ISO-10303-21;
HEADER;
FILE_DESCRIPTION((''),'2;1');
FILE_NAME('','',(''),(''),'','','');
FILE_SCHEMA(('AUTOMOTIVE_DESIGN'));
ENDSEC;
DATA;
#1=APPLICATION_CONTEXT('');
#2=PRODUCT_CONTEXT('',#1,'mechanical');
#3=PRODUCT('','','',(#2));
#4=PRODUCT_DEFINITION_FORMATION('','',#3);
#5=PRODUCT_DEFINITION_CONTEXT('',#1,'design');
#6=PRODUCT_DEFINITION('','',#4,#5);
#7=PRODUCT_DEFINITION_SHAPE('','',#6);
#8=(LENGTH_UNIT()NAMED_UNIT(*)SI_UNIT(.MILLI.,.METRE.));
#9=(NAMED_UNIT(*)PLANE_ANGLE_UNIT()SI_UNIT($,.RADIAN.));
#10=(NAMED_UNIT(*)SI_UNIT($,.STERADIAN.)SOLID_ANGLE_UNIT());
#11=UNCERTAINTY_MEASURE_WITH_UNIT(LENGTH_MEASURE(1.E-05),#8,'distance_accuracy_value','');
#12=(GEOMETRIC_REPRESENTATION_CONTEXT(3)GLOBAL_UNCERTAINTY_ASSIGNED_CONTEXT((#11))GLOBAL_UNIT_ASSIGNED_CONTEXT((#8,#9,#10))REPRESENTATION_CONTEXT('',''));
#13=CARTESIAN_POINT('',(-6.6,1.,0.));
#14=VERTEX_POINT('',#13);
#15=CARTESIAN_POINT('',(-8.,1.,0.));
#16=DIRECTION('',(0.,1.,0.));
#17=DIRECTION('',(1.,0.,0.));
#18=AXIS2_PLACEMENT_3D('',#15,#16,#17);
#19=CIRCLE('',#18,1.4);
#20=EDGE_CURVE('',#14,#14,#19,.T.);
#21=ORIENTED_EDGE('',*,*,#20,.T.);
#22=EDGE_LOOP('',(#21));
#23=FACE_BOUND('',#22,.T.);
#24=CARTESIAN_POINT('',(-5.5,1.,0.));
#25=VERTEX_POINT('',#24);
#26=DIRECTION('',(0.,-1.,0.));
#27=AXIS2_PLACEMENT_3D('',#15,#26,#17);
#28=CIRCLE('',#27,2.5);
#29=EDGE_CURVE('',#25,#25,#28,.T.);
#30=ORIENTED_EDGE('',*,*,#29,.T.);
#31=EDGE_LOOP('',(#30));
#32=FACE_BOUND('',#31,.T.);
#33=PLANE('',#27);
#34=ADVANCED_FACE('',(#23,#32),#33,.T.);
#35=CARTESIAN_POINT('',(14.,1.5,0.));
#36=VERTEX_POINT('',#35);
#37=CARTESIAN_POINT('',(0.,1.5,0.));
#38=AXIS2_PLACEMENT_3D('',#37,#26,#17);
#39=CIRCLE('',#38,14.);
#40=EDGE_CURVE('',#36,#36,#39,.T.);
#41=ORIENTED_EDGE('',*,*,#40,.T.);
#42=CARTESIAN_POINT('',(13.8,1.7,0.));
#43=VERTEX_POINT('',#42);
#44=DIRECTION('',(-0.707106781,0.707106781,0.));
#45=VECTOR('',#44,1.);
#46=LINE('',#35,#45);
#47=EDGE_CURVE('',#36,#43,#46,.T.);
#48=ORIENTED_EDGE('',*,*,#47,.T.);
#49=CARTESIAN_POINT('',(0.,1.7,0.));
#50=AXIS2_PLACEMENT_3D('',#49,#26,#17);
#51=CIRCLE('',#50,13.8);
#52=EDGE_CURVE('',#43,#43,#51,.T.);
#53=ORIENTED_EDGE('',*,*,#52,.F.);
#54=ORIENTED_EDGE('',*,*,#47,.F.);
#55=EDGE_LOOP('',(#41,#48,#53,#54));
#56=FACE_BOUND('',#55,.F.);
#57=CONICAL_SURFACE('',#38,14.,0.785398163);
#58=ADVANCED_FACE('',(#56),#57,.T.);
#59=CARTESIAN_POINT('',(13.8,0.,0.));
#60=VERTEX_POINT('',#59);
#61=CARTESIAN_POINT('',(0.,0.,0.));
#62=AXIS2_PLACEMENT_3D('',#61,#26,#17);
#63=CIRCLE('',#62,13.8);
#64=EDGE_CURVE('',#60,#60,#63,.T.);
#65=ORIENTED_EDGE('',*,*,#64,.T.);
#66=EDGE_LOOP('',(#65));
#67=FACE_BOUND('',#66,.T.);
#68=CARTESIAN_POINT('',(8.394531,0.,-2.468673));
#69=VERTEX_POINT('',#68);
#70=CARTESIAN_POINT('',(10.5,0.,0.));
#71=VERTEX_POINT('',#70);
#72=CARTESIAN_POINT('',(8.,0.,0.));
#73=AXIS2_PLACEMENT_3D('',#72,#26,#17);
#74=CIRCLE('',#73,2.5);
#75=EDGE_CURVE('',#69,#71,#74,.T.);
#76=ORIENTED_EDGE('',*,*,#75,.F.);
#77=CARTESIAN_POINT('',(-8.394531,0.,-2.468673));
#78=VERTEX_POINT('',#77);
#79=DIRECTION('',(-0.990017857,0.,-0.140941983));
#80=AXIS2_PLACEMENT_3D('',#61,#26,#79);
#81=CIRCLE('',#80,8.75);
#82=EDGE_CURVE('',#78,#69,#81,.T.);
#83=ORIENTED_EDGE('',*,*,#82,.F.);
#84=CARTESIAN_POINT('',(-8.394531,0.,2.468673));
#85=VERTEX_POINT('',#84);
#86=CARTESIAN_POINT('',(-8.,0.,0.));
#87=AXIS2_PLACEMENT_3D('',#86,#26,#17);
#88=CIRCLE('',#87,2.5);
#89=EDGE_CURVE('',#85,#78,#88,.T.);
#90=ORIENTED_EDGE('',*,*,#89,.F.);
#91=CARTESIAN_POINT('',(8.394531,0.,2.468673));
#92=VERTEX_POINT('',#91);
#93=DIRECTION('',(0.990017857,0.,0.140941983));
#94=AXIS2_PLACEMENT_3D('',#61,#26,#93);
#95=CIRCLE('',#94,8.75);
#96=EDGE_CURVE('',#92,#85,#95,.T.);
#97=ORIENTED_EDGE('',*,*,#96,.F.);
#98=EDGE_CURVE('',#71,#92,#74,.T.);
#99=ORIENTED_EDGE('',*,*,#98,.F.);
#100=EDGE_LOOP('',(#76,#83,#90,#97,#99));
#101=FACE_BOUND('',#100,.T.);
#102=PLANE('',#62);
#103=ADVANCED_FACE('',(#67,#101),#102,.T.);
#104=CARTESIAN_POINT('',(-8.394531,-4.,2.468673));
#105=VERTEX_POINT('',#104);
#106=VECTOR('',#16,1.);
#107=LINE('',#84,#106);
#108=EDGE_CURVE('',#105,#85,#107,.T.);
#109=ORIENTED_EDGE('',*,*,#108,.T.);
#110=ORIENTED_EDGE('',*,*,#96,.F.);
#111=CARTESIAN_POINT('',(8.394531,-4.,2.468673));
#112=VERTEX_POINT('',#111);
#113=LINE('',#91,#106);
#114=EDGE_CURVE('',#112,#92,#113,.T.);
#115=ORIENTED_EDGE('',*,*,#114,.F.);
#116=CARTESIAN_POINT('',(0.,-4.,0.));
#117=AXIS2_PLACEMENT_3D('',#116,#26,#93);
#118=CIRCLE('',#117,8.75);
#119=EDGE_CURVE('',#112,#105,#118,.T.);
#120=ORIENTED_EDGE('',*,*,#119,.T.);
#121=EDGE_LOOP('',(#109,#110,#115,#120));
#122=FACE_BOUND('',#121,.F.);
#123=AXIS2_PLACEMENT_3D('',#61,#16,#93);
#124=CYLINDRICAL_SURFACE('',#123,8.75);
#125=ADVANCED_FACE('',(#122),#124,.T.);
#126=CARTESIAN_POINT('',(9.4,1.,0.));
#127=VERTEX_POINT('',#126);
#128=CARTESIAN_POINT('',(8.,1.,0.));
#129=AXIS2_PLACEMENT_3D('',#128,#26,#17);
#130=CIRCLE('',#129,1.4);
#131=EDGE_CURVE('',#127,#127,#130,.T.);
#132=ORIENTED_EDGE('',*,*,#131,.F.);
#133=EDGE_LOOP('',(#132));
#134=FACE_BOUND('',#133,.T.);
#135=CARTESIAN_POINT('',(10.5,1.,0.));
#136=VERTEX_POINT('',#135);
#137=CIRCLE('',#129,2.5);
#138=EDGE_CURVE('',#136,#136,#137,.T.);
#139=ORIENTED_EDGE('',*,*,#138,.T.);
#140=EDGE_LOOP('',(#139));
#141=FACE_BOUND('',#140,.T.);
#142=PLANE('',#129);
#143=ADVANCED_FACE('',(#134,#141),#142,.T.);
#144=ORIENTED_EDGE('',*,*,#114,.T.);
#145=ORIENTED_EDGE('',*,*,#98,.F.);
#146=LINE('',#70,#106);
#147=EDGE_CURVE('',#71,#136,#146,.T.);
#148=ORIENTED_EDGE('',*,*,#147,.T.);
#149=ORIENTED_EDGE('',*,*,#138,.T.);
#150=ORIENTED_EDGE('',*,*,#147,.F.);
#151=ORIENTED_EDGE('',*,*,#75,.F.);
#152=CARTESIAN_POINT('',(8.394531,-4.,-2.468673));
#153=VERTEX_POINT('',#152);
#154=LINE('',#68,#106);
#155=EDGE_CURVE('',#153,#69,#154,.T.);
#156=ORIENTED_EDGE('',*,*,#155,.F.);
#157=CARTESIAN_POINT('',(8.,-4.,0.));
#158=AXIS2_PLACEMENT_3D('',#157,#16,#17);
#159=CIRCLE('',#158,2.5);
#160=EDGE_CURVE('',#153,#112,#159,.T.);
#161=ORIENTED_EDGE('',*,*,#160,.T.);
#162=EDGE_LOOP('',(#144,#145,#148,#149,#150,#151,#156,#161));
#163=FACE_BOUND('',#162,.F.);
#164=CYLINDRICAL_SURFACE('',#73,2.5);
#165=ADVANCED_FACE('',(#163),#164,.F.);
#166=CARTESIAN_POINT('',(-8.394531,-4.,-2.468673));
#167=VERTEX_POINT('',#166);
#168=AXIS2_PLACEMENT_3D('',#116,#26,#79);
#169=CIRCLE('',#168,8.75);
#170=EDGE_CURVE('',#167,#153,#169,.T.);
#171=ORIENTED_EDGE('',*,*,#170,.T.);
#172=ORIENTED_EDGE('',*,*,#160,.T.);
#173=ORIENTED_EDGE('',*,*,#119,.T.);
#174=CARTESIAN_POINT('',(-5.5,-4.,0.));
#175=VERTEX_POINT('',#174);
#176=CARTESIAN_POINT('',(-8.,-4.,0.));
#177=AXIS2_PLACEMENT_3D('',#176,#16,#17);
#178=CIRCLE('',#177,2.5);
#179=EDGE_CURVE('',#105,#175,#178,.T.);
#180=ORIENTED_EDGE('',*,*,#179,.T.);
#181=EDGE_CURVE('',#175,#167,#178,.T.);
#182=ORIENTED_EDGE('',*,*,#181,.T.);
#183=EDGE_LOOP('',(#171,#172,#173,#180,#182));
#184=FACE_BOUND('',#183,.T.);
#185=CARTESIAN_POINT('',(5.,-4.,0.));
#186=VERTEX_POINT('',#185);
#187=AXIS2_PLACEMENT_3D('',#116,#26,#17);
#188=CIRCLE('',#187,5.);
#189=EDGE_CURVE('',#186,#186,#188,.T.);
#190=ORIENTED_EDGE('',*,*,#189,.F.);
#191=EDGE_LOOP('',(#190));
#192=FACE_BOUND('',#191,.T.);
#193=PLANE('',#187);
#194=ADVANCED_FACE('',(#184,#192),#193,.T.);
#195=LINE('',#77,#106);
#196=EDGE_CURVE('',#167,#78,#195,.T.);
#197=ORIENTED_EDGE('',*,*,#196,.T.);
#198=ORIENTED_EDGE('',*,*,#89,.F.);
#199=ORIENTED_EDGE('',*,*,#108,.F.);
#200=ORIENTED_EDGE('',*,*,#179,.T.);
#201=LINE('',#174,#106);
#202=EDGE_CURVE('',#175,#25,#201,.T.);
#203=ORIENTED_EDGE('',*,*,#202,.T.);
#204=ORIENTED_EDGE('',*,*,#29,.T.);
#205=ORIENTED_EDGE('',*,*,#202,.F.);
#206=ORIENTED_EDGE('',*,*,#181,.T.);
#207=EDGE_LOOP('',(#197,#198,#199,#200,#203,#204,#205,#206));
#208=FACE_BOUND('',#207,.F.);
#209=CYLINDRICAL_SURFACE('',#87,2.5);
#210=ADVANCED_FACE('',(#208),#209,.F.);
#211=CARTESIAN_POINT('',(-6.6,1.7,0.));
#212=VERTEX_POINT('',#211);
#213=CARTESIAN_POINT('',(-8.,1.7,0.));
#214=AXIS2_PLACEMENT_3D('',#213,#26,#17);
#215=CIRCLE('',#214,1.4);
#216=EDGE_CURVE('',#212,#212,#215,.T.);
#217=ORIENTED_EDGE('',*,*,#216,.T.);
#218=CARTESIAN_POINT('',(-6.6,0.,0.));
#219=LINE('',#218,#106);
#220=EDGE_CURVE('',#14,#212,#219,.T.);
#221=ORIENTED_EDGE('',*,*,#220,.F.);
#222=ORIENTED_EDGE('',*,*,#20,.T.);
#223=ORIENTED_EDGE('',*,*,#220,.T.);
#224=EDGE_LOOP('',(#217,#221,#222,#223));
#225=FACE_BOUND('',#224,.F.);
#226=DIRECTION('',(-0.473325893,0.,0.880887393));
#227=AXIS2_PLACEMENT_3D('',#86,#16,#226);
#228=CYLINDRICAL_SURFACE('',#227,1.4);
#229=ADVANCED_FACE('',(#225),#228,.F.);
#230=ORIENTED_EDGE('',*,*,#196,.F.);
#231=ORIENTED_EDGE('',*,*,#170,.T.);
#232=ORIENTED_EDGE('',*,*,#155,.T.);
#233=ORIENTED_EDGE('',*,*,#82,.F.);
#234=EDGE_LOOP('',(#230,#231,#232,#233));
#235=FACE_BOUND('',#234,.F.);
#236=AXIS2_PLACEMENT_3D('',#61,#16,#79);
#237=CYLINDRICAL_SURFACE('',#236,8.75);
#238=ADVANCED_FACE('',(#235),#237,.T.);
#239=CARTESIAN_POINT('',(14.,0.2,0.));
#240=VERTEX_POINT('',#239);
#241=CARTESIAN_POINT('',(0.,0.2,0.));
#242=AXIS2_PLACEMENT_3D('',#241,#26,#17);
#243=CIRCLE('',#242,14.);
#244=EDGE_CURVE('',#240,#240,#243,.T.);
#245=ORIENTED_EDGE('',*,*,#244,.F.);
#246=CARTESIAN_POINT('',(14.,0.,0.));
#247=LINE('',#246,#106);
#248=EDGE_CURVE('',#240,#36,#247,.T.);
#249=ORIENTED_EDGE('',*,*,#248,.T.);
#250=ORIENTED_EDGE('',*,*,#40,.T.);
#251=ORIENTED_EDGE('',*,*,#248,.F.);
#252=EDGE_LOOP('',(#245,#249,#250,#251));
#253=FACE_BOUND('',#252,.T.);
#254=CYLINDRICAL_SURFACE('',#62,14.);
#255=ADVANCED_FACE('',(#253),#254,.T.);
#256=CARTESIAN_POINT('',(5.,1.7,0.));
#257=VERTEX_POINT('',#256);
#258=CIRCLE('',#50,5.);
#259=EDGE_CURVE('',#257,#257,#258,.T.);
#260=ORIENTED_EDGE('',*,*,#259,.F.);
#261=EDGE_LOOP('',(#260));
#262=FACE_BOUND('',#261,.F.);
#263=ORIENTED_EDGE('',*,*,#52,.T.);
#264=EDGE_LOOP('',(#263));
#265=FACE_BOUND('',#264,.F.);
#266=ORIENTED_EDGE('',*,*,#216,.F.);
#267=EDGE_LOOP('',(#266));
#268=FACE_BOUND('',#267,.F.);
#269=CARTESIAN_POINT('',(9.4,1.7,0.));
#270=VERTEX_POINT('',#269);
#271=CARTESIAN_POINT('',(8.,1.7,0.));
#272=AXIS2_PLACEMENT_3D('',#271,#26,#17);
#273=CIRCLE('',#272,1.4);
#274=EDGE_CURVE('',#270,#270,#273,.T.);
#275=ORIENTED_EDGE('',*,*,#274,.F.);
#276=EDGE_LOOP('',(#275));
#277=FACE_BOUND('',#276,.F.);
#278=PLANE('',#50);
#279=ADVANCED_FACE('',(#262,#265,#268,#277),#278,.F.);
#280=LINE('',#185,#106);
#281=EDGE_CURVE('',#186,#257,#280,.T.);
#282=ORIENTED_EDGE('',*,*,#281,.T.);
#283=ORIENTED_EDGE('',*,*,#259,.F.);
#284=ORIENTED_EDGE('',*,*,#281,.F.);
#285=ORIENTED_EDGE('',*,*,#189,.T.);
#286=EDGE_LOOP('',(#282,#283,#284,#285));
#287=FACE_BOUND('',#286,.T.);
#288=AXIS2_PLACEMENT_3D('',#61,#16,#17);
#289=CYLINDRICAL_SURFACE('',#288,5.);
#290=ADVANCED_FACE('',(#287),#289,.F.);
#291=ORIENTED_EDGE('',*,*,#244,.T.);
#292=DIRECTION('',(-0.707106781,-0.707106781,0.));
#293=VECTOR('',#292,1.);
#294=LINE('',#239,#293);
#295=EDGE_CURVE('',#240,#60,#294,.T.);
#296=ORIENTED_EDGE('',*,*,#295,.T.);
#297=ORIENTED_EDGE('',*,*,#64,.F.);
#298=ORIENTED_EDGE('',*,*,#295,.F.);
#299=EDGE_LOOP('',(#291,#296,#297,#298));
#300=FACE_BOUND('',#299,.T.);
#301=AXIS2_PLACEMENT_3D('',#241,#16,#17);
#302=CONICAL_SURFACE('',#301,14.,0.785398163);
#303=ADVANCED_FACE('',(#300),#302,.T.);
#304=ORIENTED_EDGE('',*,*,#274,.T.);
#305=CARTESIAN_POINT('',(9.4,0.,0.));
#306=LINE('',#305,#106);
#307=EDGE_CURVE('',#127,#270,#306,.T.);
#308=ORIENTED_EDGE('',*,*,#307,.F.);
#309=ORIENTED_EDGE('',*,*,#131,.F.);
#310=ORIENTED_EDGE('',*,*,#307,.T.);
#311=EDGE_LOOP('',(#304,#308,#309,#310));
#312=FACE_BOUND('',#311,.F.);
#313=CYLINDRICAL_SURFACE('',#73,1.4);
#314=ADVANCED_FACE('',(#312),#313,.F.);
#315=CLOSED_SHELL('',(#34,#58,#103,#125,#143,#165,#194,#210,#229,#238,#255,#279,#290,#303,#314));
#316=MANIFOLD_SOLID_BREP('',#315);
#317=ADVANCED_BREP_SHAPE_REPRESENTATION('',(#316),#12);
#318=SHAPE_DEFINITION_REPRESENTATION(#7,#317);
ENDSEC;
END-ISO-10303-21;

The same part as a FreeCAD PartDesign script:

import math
import FreeCAD as App
import Part
import Sketcher
from FreeCAD import Vector


def edges_at(feature, points):
    """Names of the edges that pass closest to the given points."""
    edges = feature.Shape.Edges
    near = lambda p: min(range(len(edges)), key=lambda i: edges[i].distToShape(Part.Vertex(*p))[0])
    return sorted({f"Edge{near(p) + 1}" for p in points})

doc = App.newDocument("Part")
body = doc.addObject("PartDesign::Body", "Body")

# Sketch on XZ plane
sketch1 = body.newObject("Sketcher::SketchObject", "Sketch")
sketch1.AttachmentSupport = (doc.getObject("XZ_Plane"), [""])
sketch1.MapMode = "FlatFace"
sketch1.addGeometry([
    Part.Circle(Vector(0, 0, 0), Vector(0, 0, 1), 14),
    Part.Circle(Vector(-8, 0, 0), Vector(0, 0, 1), 1.4),
    Part.Circle(Vector(0, 0, 0), Vector(0, 0, 1), 5),
    Part.Circle(Vector(8, 0, 0), Vector(0, 0, 1), 1.4),
], False)
sketch1.addConstraint([
    Sketcher.Constraint("Coincident", 0, 3, -1, 1),
    Sketcher.Constraint("Coincident", 2, 3, -1, 1),
    Sketcher.Constraint("Equal", 1, 3),
    Sketcher.Constraint("Symmetric", 1, 3, 3, 3, -1, 1),
    Sketcher.Constraint("PointOnObject", 1, 3, -1),
    Sketcher.Constraint("Diameter", 0, 28.0),
    Sketcher.Constraint("Diameter", 2, 10.0),
    Sketcher.Constraint("Diameter", 1, 2.8),
    Sketcher.Constraint("DistanceX", 1, 3, -1, 1, 8.0),
])
pad1 = body.newObject("PartDesign::Pad", "Pad")
pad1.Profile = sketch1
pad1.Length = 1.7
pad1.Reversed = True
doc.recompute()

chamfer = body.newObject("PartDesign::Chamfer", "Chamfer")
chamfer.Base = (pad1, edges_at(pad1, [(-14, 1.7, 0), (-14, 0, 0)]))
chamfer.Size = 0.2

# Sketch on XZ plane
sketch2 = body.newObject("Sketcher::SketchObject", "Sketch001")
sketch2.AttachmentSupport = (doc.getObject("XZ_Plane"), [""])
sketch2.MapMode = "FlatFace"
sketch2.addGeometry([
    Part.ArcOfCircle(Part.Circle(Vector(-8, 0, 0), Vector(0, 0, 1), 1.4), math.radians(-118), math.radians(118)),  # 0
    Part.ArcOfCircle(Part.Circle(Vector(0, 0, 0), Vector(0, 0, 1), 8.8), math.radians(-172), math.radians(-8)),  # 1
    Part.ArcOfCircle(Part.Circle(Vector(8, 0, 0), Vector(0, 0, 1), 1.4), math.radians(62), math.radians(298)),  # 2
    Part.ArcOfCircle(Part.Circle(Vector(0, 0, 0), Vector(0, 0, 1), 8.8), math.radians(8), math.radians(172)),  # 3
    Part.Circle(Vector(0, 0, 0), Vector(0, 0, 1), 5),  # 4
], False)
sketch2.addConstraint([
    Sketcher.Constraint("Coincident", 0, 1, 1, 1),
    Sketcher.Constraint("Coincident", 1, 2, 2, 2),
    Sketcher.Constraint("Coincident", 2, 1, 3, 1),
    Sketcher.Constraint("Coincident", 3, 2, 0, 2),
    Sketcher.Constraint("Coincident", 1, 3, -1, 1),
    Sketcher.Constraint("Coincident", 3, 3, -1, 1),
    Sketcher.Constraint("Coincident", 4, 3, -1, 1),
    Sketcher.Constraint("Equal", 0, 2),
    Sketcher.Constraint("Equal", 1, 3),
    Sketcher.Constraint("Symmetric", 0, 3, 2, 3, -1, 1),
    Sketcher.Constraint("PointOnObject", 0, 3, -1),
    Sketcher.Constraint("Diameter", 4, 10.0),
    Sketcher.Constraint("Radius", 0, 1.4),
    Sketcher.Constraint("Radius", 1, 8.75),
    Sketcher.Constraint("DistanceX", 0, 3, -1, 1, 8.0),
])
pad2 = body.newObject("PartDesign::Pad", "Pad001")
pad2.Profile = sketch2
pad2.Length = 4

# Sketch on XZ plane
sketch3 = body.newObject("Sketcher::SketchObject", "Sketch002")
sketch3.AttachmentSupport = (doc.getObject("XZ_Plane"), [""])
sketch3.MapMode = "FlatFace"
sketch3.addGeometry([
    Part.Circle(Vector(-8, 0, 0), Vector(0, 0, 1), 2.5),
    Part.Circle(Vector(8, 0, 0), Vector(0, 0, 1), 2.5),
], False)
sketch3.addConstraint([
    Sketcher.Constraint("Equal", 0, 1),
    Sketcher.Constraint("Symmetric", 0, 3, 1, 3, -1, 1),
    Sketcher.Constraint("PointOnObject", 0, 3, -1),
    Sketcher.Constraint("Diameter", 0, 5.0),
    Sketcher.Constraint("DistanceX", 0, 3, -1, 1, 8.0),
])
pocket1 = body.newObject("PartDesign::Pocket", "Pocket")
pocket1.Profile = sketch3
pocket1.Type = "TwoLengths"
pocket1.Length = 1
pocket1.Length2 = 4.001

doc.recompute()
